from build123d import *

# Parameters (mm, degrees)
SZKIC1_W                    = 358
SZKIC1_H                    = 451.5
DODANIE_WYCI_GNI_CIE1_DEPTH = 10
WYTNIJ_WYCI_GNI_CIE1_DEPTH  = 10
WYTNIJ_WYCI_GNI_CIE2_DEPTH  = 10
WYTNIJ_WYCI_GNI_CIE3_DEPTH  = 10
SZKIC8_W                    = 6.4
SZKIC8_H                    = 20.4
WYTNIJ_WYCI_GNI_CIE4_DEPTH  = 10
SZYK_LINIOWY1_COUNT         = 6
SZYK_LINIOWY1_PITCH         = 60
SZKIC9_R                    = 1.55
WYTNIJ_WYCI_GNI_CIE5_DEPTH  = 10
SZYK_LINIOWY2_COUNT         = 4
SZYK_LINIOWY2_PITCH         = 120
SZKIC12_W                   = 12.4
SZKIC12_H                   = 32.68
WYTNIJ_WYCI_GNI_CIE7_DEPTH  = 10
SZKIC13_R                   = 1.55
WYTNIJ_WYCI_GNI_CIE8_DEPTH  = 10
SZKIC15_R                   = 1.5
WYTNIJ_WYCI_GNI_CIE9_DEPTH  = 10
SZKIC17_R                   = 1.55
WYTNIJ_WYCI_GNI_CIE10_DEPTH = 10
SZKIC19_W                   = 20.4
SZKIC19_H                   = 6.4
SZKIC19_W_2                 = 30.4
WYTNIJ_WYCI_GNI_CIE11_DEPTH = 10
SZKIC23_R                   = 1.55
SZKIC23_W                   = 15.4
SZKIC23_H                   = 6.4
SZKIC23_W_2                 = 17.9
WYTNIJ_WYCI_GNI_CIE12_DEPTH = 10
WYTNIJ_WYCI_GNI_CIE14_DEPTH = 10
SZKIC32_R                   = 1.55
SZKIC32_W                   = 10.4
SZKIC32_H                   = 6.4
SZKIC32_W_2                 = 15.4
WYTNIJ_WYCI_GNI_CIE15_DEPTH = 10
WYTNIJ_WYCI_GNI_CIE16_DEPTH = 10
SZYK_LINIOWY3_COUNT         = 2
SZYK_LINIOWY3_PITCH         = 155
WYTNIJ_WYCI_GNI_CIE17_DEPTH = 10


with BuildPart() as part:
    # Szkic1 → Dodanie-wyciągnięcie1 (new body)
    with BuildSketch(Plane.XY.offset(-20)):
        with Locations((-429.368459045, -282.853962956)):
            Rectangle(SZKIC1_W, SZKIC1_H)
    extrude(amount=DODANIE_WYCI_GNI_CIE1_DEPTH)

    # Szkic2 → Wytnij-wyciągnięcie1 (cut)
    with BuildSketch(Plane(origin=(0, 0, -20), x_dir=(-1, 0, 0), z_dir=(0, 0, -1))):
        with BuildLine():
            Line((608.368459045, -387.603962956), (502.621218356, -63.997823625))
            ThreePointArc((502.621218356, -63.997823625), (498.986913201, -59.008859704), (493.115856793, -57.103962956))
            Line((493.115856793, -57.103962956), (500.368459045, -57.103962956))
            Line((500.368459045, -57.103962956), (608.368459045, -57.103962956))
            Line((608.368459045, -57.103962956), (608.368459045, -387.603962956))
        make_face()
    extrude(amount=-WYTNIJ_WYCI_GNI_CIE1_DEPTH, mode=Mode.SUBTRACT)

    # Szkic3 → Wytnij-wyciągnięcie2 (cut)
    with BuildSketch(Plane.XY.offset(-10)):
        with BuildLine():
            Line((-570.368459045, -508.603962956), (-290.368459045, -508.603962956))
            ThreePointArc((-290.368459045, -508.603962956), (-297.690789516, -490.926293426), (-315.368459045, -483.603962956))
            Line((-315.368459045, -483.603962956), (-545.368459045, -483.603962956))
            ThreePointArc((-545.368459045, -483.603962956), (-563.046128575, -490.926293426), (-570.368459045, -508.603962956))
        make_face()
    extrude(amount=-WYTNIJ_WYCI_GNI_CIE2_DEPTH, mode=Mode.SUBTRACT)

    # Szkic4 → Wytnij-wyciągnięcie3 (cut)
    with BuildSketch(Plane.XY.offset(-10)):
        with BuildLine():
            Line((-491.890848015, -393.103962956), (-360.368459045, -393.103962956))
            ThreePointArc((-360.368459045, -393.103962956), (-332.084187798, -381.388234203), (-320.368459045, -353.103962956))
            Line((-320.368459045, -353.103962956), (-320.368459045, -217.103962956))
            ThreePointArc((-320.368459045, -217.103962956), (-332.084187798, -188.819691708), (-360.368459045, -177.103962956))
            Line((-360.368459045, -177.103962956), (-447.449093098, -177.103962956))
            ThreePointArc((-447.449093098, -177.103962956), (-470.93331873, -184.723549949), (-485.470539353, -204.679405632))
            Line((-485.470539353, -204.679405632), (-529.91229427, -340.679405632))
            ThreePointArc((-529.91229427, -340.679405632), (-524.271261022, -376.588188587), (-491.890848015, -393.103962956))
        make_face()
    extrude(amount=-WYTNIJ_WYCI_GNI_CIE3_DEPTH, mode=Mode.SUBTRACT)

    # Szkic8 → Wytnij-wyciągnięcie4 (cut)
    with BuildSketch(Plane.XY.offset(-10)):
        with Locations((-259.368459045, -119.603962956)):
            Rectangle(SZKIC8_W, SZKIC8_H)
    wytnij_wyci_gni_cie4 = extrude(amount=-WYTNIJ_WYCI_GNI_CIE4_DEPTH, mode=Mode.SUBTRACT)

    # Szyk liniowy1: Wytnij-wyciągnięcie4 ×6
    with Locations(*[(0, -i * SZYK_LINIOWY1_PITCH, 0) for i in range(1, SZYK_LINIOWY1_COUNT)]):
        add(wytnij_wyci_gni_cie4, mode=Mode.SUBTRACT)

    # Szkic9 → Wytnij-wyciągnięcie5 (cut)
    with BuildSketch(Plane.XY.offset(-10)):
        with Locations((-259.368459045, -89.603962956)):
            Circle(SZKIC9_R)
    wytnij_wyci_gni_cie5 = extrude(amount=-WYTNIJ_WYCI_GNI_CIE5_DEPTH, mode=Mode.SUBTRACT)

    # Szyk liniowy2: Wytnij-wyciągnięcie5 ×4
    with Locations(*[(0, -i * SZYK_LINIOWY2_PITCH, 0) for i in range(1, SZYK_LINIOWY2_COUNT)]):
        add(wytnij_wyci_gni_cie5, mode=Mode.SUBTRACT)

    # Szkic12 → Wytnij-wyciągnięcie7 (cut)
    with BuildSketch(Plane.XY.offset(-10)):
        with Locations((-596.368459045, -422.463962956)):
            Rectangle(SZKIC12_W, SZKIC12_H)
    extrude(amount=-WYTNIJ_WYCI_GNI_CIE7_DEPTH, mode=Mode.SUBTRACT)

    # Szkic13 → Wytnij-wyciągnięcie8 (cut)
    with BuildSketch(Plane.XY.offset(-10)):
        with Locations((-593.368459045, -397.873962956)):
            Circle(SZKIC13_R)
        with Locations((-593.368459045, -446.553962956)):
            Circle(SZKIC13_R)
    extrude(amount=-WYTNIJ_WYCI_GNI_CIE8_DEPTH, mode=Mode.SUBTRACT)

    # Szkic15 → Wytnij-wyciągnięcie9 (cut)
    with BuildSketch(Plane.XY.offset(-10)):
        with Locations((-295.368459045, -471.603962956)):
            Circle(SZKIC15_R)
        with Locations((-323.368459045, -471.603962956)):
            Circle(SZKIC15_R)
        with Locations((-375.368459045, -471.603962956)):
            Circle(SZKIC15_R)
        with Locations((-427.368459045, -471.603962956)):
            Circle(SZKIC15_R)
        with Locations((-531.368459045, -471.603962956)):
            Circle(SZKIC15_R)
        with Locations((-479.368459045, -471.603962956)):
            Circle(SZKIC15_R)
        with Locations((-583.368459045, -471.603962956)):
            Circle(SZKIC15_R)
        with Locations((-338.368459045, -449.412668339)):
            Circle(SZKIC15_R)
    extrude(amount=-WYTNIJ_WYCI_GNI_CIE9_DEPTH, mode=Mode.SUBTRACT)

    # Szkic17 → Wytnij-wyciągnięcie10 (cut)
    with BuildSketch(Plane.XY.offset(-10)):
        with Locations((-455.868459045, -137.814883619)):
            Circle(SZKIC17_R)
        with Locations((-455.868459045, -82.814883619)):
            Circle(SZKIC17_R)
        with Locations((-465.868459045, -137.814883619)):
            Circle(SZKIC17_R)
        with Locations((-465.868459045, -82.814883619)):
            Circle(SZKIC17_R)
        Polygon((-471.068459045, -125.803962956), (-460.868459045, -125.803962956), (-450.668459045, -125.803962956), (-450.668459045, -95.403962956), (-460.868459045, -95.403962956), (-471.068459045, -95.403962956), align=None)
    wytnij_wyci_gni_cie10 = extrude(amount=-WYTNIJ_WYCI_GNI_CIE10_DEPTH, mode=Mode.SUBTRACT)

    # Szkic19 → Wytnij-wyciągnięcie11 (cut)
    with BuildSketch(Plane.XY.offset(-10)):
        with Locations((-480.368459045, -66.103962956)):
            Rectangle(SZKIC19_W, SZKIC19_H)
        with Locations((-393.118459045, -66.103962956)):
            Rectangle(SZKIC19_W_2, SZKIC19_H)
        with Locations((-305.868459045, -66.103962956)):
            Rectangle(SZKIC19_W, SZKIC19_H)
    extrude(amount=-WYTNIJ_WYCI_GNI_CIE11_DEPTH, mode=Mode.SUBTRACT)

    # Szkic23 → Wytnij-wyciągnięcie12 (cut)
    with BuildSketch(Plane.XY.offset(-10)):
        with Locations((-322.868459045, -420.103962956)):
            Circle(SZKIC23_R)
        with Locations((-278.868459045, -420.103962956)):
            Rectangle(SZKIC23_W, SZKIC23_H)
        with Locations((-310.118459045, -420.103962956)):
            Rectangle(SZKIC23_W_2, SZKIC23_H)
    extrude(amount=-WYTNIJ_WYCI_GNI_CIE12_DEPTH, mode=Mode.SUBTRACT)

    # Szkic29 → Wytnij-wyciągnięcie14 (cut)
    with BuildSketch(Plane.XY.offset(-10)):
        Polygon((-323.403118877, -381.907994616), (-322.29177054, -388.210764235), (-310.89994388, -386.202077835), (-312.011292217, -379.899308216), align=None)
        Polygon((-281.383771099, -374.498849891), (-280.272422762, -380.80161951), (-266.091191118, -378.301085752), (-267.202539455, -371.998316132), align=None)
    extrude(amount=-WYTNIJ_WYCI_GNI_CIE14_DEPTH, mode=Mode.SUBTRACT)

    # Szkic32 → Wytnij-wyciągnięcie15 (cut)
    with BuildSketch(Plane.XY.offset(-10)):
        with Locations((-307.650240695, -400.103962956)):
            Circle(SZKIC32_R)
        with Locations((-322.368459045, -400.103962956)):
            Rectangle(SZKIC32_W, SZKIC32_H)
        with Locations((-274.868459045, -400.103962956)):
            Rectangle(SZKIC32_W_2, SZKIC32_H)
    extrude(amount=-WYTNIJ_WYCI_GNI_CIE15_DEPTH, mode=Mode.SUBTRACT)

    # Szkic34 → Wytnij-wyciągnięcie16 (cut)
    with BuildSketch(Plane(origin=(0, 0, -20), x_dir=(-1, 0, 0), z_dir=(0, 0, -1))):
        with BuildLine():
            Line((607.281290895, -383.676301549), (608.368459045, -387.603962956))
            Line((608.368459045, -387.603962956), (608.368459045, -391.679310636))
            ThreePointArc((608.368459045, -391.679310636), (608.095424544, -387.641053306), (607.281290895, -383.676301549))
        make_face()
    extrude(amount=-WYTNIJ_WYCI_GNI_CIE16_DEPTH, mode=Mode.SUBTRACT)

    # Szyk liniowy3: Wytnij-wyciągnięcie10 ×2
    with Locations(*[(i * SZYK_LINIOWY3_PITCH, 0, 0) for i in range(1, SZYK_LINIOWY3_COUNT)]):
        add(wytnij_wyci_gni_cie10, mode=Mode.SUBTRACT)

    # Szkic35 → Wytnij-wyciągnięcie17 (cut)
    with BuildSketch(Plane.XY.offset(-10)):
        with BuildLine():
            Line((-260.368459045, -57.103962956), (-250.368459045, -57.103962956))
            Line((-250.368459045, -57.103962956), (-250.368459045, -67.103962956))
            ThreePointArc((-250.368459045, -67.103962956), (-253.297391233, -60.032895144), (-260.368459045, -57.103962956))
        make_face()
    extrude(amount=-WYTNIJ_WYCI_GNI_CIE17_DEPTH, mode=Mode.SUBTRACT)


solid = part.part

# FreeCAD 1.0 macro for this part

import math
import FreeCAD as App
import Part
import Sketcher

V = App.Vector
Q = App.Units.Quantity


def add_polygon(sketch, points):
    """Adds a closed chain of lines whose ends are joined by coincident constraints."""
    first, n = sketch.GeometryCount, len(points)
    for a, b in zip(points, points[1:] + points[:1]):
        sketch.addGeometry(Part.LineSegment(App.Vector(*a, 0), App.Vector(*b, 0)), False)
    for i in range(n):
        sketch.addConstraint(Sketcher.Constraint("Coincident", first + i, 2, first + (i + 1) % n, 1))

doc = App.newDocument("Part")
body = doc.addObject("PartDesign::Body", "Body")

sketch1 = doc.addObject("Sketcher::SketchObject", "Sketch")
body.addObject(sketch1)
sketch1.AttachmentSupport = (doc.XY_Plane, [""])
sketch1.MapMode = "FlatFace"
sketch1.AttachmentOffset = App.Placement(V(0, 0, -20), App.Rotation())
add_polygon(sketch1, [(-608, -57), (-608, -509), (-250, -509), (-250, -57)])
sketch1.addConstraint([
    Sketcher.Constraint("Vertical", 0),
    Sketcher.Constraint("Horizontal", 1),
    Sketcher.Constraint("Vertical", 2),
    Sketcher.Constraint("Horizontal", 3),
    Sketcher.Constraint("DistanceX", 1, 1, 1, 2, Q("358 mm")),
    Sketcher.Constraint("DistanceY", 0, 2, 0, 1, Q("451.5 mm")),
    Sketcher.Constraint("DistanceX", 0, 2, -1, 1, Q("608.368459 mm")),
    Sketcher.Constraint("DistanceY", 0, 2, -1, 1, Q("508.603963 mm")),
])
pad1 = doc.addObject("PartDesign::Pad", "Pad")
body.addObject(pad1)
pad1.Profile = sketch1
pad1.Length = 10

sketch2 = doc.addObject("Sketcher::SketchObject", "Sketch001")
body.addObject(sketch2)
sketch2.AttachmentSupport = (doc.XY_Plane, [""])
sketch2.MapMode = "FlatFace"
sketch2.AttachmentOffset = App.Placement(V(0, 0, -20), App.Rotation())
sketch2.addGeometry([
    Part.LineSegment(V(-503, -64, 0), V(-608, -388, 0)),
    Part.LineSegment(V(-608, -388, 0), V(-608, -57, 0)),
    Part.LineSegment(V(-608, -57, 0), V(-493, -57, 0)),
    Part.ArcOfCircle(Part.Circle(V(-493, -67, 0), V(0, 0, 1), 10), math.radians(90), math.radians(162)),
], False)
sketch2.addConstraint([
    Sketcher.Constraint("Coincident", 0, 2, 1, 1),
    Sketcher.Constraint("Coincident", 1, 2, 2, 1),
    Sketcher.Constraint("Tangent", 2, 2, 3, 1),
    Sketcher.Constraint("Tangent", 3, 2, 0, 1),
    Sketcher.Constraint("Vertical", 1),
    Sketcher.Constraint("Horizontal", 2),
    Sketcher.Constraint("Radius", 3, Q("10 mm")),
    Sketcher.Constraint("DistanceY", 1, 1, 1, 2, Q("330.5 mm")),
    Sketcher.Constraint("DistanceX", 2, 1, 2, 2, Q("115.252602 mm")),
    Sketcher.Constraint("DistanceX", 0, 2, -1, 1, Q("608.368459 mm")),
    Sketcher.Constraint("DistanceY", 3, 3, -1, 1, Q("67.103963 mm")),
])
pocket1 = doc.addObject("PartDesign::Pocket", "Pocket")
body.addObject(pocket1)
pocket1.Profile = sketch2
pocket1.Length = 10
pocket1.Reversed = True

sketch3 = doc.addObject("Sketcher::SketchObject", "Sketch002")
body.addObject(sketch3)
sketch3.AttachmentSupport = (doc.XY_Plane, [""])
sketch3.MapMode = "FlatFace"
sketch3.AttachmentOffset = App.Placement(V(0, 0, -10), App.Rotation())
sketch3.addGeometry([
    Part.LineSegment(V(-570, -509, 0), V(-290, -509, 0)),
    Part.ArcOfCircle(Part.Circle(V(-315, -509, 0), V(0, 0, 1), 25), math.radians(0), math.radians(90)),
    Part.LineSegment(V(-315, -484, 0), V(-545, -484, 0)),
    Part.ArcOfCircle(Part.Circle(V(-545, -509, 0), V(0, 0, 1), 25), math.radians(90), math.radians(180)),
], False)
sketch3.addConstraint([
    Sketcher.Constraint("Coincident", 0, 2, 1, 1),
    Sketcher.Constraint("Tangent", 1, 2, 2, 1),
    Sketcher.Constraint("Tangent", 2, 2, 3, 1),
    Sketcher.Constraint("Coincident", 3, 2, 0, 1),
    Sketcher.Constraint("Horizontal", 0),
    Sketcher.Constraint("Horizontal", 2),
    Sketcher.Constraint("Equal", 1, 3),
    Sketcher.Constraint("Horizontal", 3, 3, 0, 2),
    Sketcher.Constraint("Radius", 1, Q("25 mm")),
    Sketcher.Constraint("DistanceX", 0, 1, 0, 2, Q("280 mm")),
    Sketcher.Constraint("DistanceX", 1, 3, -1, 1, Q("315.368459 mm")),
    Sketcher.Constraint("DistanceY", 1, 3, -1, 1, Q("508.603963 mm")),
])
pocket2 = doc.addObject("PartDesign::Pocket", "Pocket001")
body.addObject(pocket2)
pocket2.Profile = sketch3
pocket2.Length = 10

sketch4 = doc.addObject("Sketcher::SketchObject", "Sketch003")
body.addObject(sketch4)
sketch4.AttachmentSupport = (doc.XY_Plane, [""])
sketch4.MapMode = "FlatFace"
sketch4.AttachmentOffset = App.Placement(V(0, 0, -10), App.Rotation())
sketch4.addGeometry([
    Part.LineSegment(V(-492, -393, 0), V(-360, -393, 0)),
    Part.ArcOfCircle(Part.Circle(V(-360, -353, 0), V(0, 0, 1), 40), math.radians(-90), math.radians(0)),
    Part.LineSegment(V(-320, -353, 0), V(-320, -217, 0)),
    Part.ArcOfCircle(Part.Circle(V(-360, -217, 0), V(0, 0, 1), 40), math.radians(0), math.radians(90)),
    Part.LineSegment(V(-360, -177, 0), V(-447, -177, 0)),
    Part.ArcOfCircle(Part.Circle(V(-447, -217, 0), V(0, 0, 1), 40), math.radians(90), math.radians(162)),
    Part.LineSegment(V(-485, -205, 0), V(-530, -341, 0)),
    Part.ArcOfCircle(Part.Circle(V(-492, -353, 0), V(0, 0, 1), 40), math.radians(162), math.radians(270)),
], False)
sketch4.addConstraint([
    Sketcher.Constraint("Tangent", 0, 2, 1, 1),
    Sketcher.Constraint("Tangent", 1, 2, 2, 1),
    Sketcher.Constraint("Tangent", 2, 2, 3, 1),
    Sketcher.Constraint("Tangent", 3, 2, 4, 1),
    Sketcher.Constraint("Tangent", 4, 2, 5, 1),
    Sketcher.Constraint("Tangent", 5, 2, 6, 1),
    Sketcher.Constraint("Tangent", 6, 2, 7, 1),
    Sketcher.Constraint("Tangent", 7, 2, 0, 1),
    Sketcher.Constraint("Horizontal", 0),
    Sketcher.Constraint("Vertical", 2),
    Sketcher.Constraint("Horizontal", 4),
    Sketcher.Constraint("Equal", 1, 3),
    Sketcher.Constraint("Equal", 3, 5),
    Sketcher.Constraint("Equal", 5, 7),
    Sketcher.Constraint("Radius", 1, Q("40 mm")),
    Sketcher.Constraint("DistanceY", 2, 1, 2, 2, Q("136 mm")),
    Sketcher.Constraint("DistanceX", 0, 1, 0, 2, Q("131.522389 mm")),
    Sketcher.Constraint("DistanceX", 6, 2, 5, 3, Q("82.463201 mm")),
    Sketcher.Constraint("DistanceX", 1, 3, -1, 1, Q("360.368459 mm")),
    Sketcher.Constraint("DistanceY", 1, 3, -1, 1, Q("353.103963 mm")),
])
pocket3 = doc.addObject("PartDesign::Pocket", "Pocket002")
body.addObject(pocket3)
pocket3.Profile = sketch4
pocket3.Length = 10

sketch5 = doc.addObject("Sketcher::SketchObject", "Sketch004")
body.addObject(sketch5)
sketch5.AttachmentSupport = (doc.XY_Plane, [""])
sketch5.MapMode = "FlatFace"
sketch5.AttachmentOffset = App.Placement(V(0, 0, -10), App.Rotation())
add_polygon(sketch5, [(-263, -109), (-263, -130), (-256, -130), (-256, -109)])
sketch5.addConstraint([
    Sketcher.Constraint("Vertical", 0),
    Sketcher.Constraint("Horizontal", 1),
    Sketcher.Constraint("Vertical", 2),
    Sketcher.Constraint("Horizontal", 3),
    Sketcher.Constraint("DistanceX", 1, 1, 1, 2, Q("6.4 mm")),
    Sketcher.Constraint("DistanceY", 0, 2, 0, 1, Q("20.4 mm")),
    Sketcher.Constraint("DistanceX", 0, 2, -1, 1, Q("262.568459 mm")),
    Sketcher.Constraint("DistanceY", 0, 2, -1, 1, Q("129.803963 mm")),
])
pocket4 = doc.addObject("PartDesign::Pocket", "Pocket003")
body.addObject(pocket4)
pocket4.Profile = sketch5
pocket4.Length = 10
doc.recompute()

linearpattern = doc.addObject("PartDesign::LinearPattern", "LinearPattern")
body.addObject(linearpattern)
linearpattern.Originals = [pocket4]
linearpattern.Direction = (doc.Y_Axis, [""])
linearpattern.Mode = "offset"
linearpattern.Offset = 60
linearpattern.Occurrences = 6
linearpattern.Reversed = True
body.Tip = linearpattern

sketch6 = doc.addObject("Sketcher::SketchObject", "Sketch005")
body.addObject(sketch6)
sketch6.AttachmentSupport = (doc.XY_Plane, [""])
sketch6.MapMode = "FlatFace"
sketch6.AttachmentOffset = App.Placement(V(0, 0, -10), App.Rotation())
sketch6.addGeometry(Part.Circle(V(-259.4, -89.6, 0), V(0, 0, 1), 1.6), False)
sketch6.addConstraint([
    Sketcher.Constraint("Diameter", 0, Q("3.1 mm")),
    Sketcher.Constraint("DistanceX", 0, 3, -1, 1, Q("259.368459 mm")),
    Sketcher.Constraint("DistanceY", 0, 3, -1, 1, Q("89.603963 mm")),
])
pocket5 = doc.addObject("PartDesign::Pocket", "Pocket004")
body.addObject(pocket5)
pocket5.Profile = sketch6
pocket5.Length = 10
doc.recompute()

linearpattern2 = doc.addObject("PartDesign::LinearPattern", "LinearPattern001")
body.addObject(linearpattern2)
linearpattern2.Originals = [pocket5]
linearpattern2.Direction = (doc.Y_Axis, [""])
linearpattern2.Mode = "offset"
linearpattern2.Offset = 120
linearpattern2.Occurrences = 4
linearpattern2.Reversed = True
body.Tip = linearpattern2

sketch7 = doc.addObject("Sketcher::SketchObject", "Sketch006")
body.addObject(sketch7)
sketch7.AttachmentSupport = (doc.XY_Plane, [""])
sketch7.MapMode = "FlatFace"
sketch7.AttachmentOffset = App.Placement(V(0, 0, -10), App.Rotation())
add_polygon(sketch7, [(-603, -406), (-603, -439), (-590, -439), (-590, -406)])
sketch7.addConstraint([
    Sketcher.Constraint("Vertical", 0),
    Sketcher.Constraint("Horizontal", 1),
    Sketcher.Constraint("Vertical", 2),
    Sketcher.Constraint("Horizontal", 3),
    Sketcher.Constraint("DistanceX", 1, 1, 1, 2, Q("12.4 mm")),
    Sketcher.Constraint("DistanceY", 0, 2, 0, 1, Q("32.68 mm")),
    Sketcher.Constraint("DistanceX", 0, 2, -1, 1, Q("602.568459 mm")),
    Sketcher.Constraint("DistanceY", 0, 2, -1, 1, Q("438.803963 mm")),
])
pocket6 = doc.addObject("PartDesign::Pocket", "Pocket005")
body.addObject(pocket6)
pocket6.Profile = sketch7
pocket6.Length = 10

sketch8 = doc.addObject("Sketcher::SketchObject", "Sketch007")
body.addObject(sketch8)
sketch8.AttachmentSupport = (doc.XY_Plane, [""])
sketch8.MapMode = "FlatFace"
sketch8.AttachmentOffset = App.Placement(V(0, 0, -10), App.Rotation())
sketch8.addGeometry([
    Part.Circle(V(-593.4, -397.9, 0), V(0, 0, 1), 1.6),
    Part.Circle(V(-593.4, -446.6, 0), V(0, 0, 1), 1.6),
], False)
sketch8.addConstraint([
    Sketcher.Constraint("Equal", 0, 1),
    Sketcher.Constraint("Vertical", 0, 3, 1, 3),
    Sketcher.Constraint("Diameter", 0, Q("3.1 mm")),
    Sketcher.Constraint("DistanceY", 1, 3, 0, 3, Q("48.68 mm")),
    Sketcher.Constraint("DistanceX", 0, 3, -1, 1, Q("593.368459 mm")),
    Sketcher.Constraint("DistanceY", 0, 3, -1, 1, Q("397.873963 mm")),
])
pocket7 = doc.addObject("PartDesign::Pocket", "Pocket006")
body.addObject(pocket7)
pocket7.Profile = sketch8
pocket7.Length = 10

sketch9 = doc.addObject("Sketcher::SketchObject", "Sketch008")
body.addObject(sketch9)
sketch9.AttachmentSupport = (doc.XY_Plane, [""])
sketch9.MapMode = "FlatFace"
sketch9.AttachmentOffset = App.Placement(V(0, 0, -10), App.Rotation())
sketch9.addGeometry([
    Part.Circle(V(-295.4, -471.6, 0), V(0, 0, 1), 1.5),
    Part.Circle(V(-323.4, -471.6, 0), V(0, 0, 1), 1.5),
    Part.Circle(V(-375.4, -471.6, 0), V(0, 0, 1), 1.5),
    Part.Circle(V(-427.4, -471.6, 0), V(0, 0, 1), 1.5),
    Part.Circle(V(-531.4, -471.6, 0), V(0, 0, 1), 1.5),
    Part.Circle(V(-479.4, -471.6, 0), V(0, 0, 1), 1.5),
    Part.Circle(V(-583.4, -471.6, 0), V(0, 0, 1), 1.5),
    Part.Circle(V(-338.4, -449.4, 0), V(0, 0, 1), 1.5),
], False)
sketch9.addConstraint([
    Sketcher.Constraint("Equal", 0, 1),
    Sketcher.Constraint("Equal", 1, 2),
    Sketcher.Constraint("Equal", 2, 3),
    Sketcher.Constraint("Equal", 3, 4),
    Sketcher.Constraint("Equal", 4, 5),
    Sketcher.Constraint("Equal", 5, 6),
    Sketcher.Constraint("Equal", 6, 7),
    Sketcher.Constraint("Horizontal", 0, 3, 1, 3),
    Sketcher.Constraint("Horizontal", 1, 3, 2, 3),
    Sketcher.Constraint("Horizontal", 2, 3, 3, 3),
    Sketcher.Constraint("Horizontal", 3, 3, 4, 3),
    Sketcher.Constraint("Horizontal", 4, 3, 5, 3),
    Sketcher.Constraint("Horizontal", 5, 3, 6, 3),
    Sketcher.Constraint("Diameter", 0, Q("3 mm")),
    Sketcher.Constraint("DistanceX", 1, 3, 0, 3, Q("28 mm")),
    Sketcher.Constraint("DistanceX", 2, 3, 1, 3, Q("52 mm")),
    Sketcher.Constraint("DistanceX", 3, 3, 2, 3, Q("52 mm")),
    Sketcher.Constraint("DistanceX", 4, 3, 3, 3, Q("104 mm")),
    Sketcher.Constraint("DistanceX", 5, 3, 3, 3, Q("52 mm")),
    Sketcher.Constraint("DistanceX", 6, 3, 4, 3, Q("52 mm")),
    Sketcher.Constraint("DistanceX", 7, 3, 1, 3, Q("15 mm")),
    Sketcher.Constraint("DistanceX", 0, 3, -1, 1, Q("295.368459 mm")),
    Sketcher.Constraint("DistanceY", 7, 3, -1, 1, Q("449.412668 mm")),
    Sketcher.Constraint("DistanceY", 0, 3, -1, 1, Q("471.603963 mm")),
])
pocket8 = doc.addObject("PartDesign::Pocket", "Pocket007")
body.addObject(pocket8)
pocket8.Profile = sketch9
pocket8.Length = 10

sketch10 = doc.addObject("Sketcher::SketchObject", "Sketch009")
body.addObject(sketch10)
sketch10.AttachmentSupport = (doc.XY_Plane, [""])
sketch10.MapMode = "FlatFace"
sketch10.AttachmentOffset = App.Placement(V(0, 0, -10), App.Rotation())
sketch10.addGeometry(Part.Circle(V(-455.9, -137.8, 0), V(0, 0, 1), 1.6), False)
sketch10.addGeometry(Part.Circle(V(-455.9, -82.8, 0), V(0, 0, 1), 1.6), False)
sketch10.addGeometry(Part.Circle(V(-465.9, -137.8, 0), V(0, 0, 1), 1.6), False)
sketch10.addGeometry(Part.Circle(V(-465.9, -82.8, 0), V(0, 0, 1), 1.6), False)
add_polygon(sketch10, [(-471.1, -125.8), (-450.7, -125.8), (-450.7, -95.4), (-471.1, -95.4)])
sketch10.addConstraint([
    Sketcher.Constraint("Horizontal", 4),
    Sketcher.Constraint("Vertical", 5),
    Sketcher.Constraint("Horizontal", 6),
    Sketcher.Constraint("Vertical", 7),
    Sketcher.Constraint("Equal", 0, 1),
    Sketcher.Constraint("Equal", 1, 2),
    Sketcher.Constraint("Equal", 2, 3),
    Sketcher.Constraint("Horizontal", 0, 3, 2, 3),
    Sketcher.Constraint("Horizontal", 1, 3, 3, 3),
    Sketcher.Constraint("Vertical", 0, 3, 1, 3),
    Sketcher.Constraint("Vertical", 2, 3, 3, 3),
    Sketcher.Constraint("Diameter", 0, Q("3.1 mm")),
    Sketcher.Constraint("DistanceX", 4, 1, 4, 2, Q("20.4 mm")),
    Sketcher.Constraint("DistanceY", 5, 1, 5, 2, Q("30.4 mm")),
    Sketcher.Constraint("DistanceY", 0, 3, 1, 3, Q("55 mm")),
    Sketcher.Constraint("DistanceX", 2, 3, 0, 3, Q("10 mm")),
    Sketcher.Constraint("DistanceX", 0, 3, 4, 2, Q("5.2 mm")),
    Sketcher.Constraint("DistanceX", 0, 3, -1, 1, Q("455.868459 mm")),
    Sketcher.Constraint("DistanceY", 0, 3, 4, 2, Q("12.010921 mm")),
    Sketcher.Constraint("DistanceY", 0, 3, -1, 1, Q("137.814884 mm")),
])
pocket9 = doc.addObject("PartDesign::Pocket", "Pocket008")
body.addObject(pocket9)
pocket9.Profile = sketch10
pocket9.Length = 10

sketch11 = doc.addObject("Sketcher::SketchObject", "Sketch010")
body.addObject(sketch11)
sketch11.AttachmentSupport = (doc.XY_Plane, [""])
sketch11.MapMode = "FlatFace"
sketch11.AttachmentOffset = App.Placement(V(0, 0, -10), App.Rotation())
add_polygon(sketch11, [(-491, -63), (-491, -69), (-470, -69), (-470, -63)])
add_polygon(sketch11, [(-408, -63), (-408, -69), (-378, -69), (-378, -63)])
add_polygon(sketch11, [(-316, -63), (-316, -69), (-296, -69), (-296, -63)])
sketch11.addConstraint([
    Sketcher.Constraint("Vertical", 0),
    Sketcher.Constraint("Horizontal", 1),
    Sketcher.Constraint("Vertical", 2),
    Sketcher.Constraint("Horizontal", 3),
    Sketcher.Constraint("Vertical", 4),
    Sketcher.Constraint("Horizontal", 5),
    Sketcher.Constraint("Vertical", 6),
    Sketcher.Constraint("Horizontal", 7),
    Sketcher.Constraint("Vertical", 8),
    Sketcher.Constraint("Horizontal", 9),
    Sketcher.Constraint("Vertical", 10),
    Sketcher.Constraint("Horizontal", 11),
    Sketcher.Constraint("Horizontal", 1, 2, 4, 2),
    Sketcher.Constraint("Horizontal", 3, 2, 6, 2),
    Sketcher.Constraint("Horizontal", 5, 2, 8, 2),
    Sketcher.Constraint("Horizontal", 7, 2, 10, 2),
    Sketcher.Constraint("Equal", 3, 9),
    Sketcher.Constraint("DistanceX", 1, 1, 1, 2, Q("20.4 mm")),
    Sketcher.Constraint("DistanceX", 5, 1, 5, 2, Q("30.4 mm")),
    Sketcher.Constraint("DistanceY", 0, 2, 0, 1, Q("6.4 mm")),
    Sketcher.Constraint("DistanceX", 1, 2, 8, 2, Q("154.1 mm")),
    Sketcher.Constraint("DistanceX", 1, 2, 4, 2, Q("61.85 mm")),
    Sketcher.Constraint("DistanceX", 0, 2, -1, 1, Q("490.568459 mm")),
    Sketcher.Constraint("DistanceY", 0, 2, -1, 1, Q("69.303963 mm")),
])
pocket10 = doc.addObject("PartDesign::Pocket", "Pocket009")
body.addObject(pocket10)
pocket10.Profile = sketch11
pocket10.Length = 10

sketch12 = doc.addObject("Sketcher::SketchObject", "Sketch011")
body.addObject(sketch12)
sketch12.AttachmentSupport = (doc.XY_Plane, [""])
sketch12.MapMode = "FlatFace"
sketch12.AttachmentOffset = App.Placement(V(0, 0, -10), App.Rotation())
sketch12.addGeometry(Part.Circle(V(-322.9, -420.1, 0), V(0, 0, 1), 1.6), False)
add_polygon(sketch12, [(-286.6, -416.9), (-286.6, -423.3), (-271.2, -423.3), (-271.2, -416.9)])
add_polygon(sketch12, [(-319.1, -416.9), (-319.1, -423.3), (-301.2, -423.3), (-301.2, -416.9)])
sketch12.addConstraint([
    Sketcher.Constraint("Vertical", 1),
    Sketcher.Constraint("Horizontal", 2),
    Sketcher.Constraint("Vertical", 3),
    Sketcher.Constraint("Horizontal", 4),
    Sketcher.Constraint("Vertical", 5),
    Sketcher.Constraint("Horizontal", 6),
    Sketcher.Constraint("Vertical", 7),
    Sketcher.Constraint("Horizontal", 8),
    Sketcher.Constraint("Horizontal", 2, 2, 5, 2),
    Sketcher.Constraint("Horizontal", 4, 2, 7, 2),
    Sketcher.Constraint("Diameter", 0, Q("3.1 mm")),
    Sketcher.Constraint("DistanceX", 2, 1, 2, 2, Q("15.4 mm")),
    Sketcher.Constraint("DistanceX", 6, 1, 6, 2, Q("17.9 mm")),
    Sketcher.Constraint("DistanceY", 1, 2, 1, 1, Q("6.4 mm")),
    Sketcher.Constraint("DistanceX", 6, 2, 2, 2, Q("30 mm")),
    Sketcher.Constraint("DistanceX", 0, 3, 1, 2, Q("36.3 mm")),
    Sketcher.Constraint("DistanceY", 1, 2, 0, 3, Q("3.2 mm")),
    Sketcher.Constraint("DistanceX", 0, 3, -1, 1, Q("322.868459 mm")),
    Sketcher.Constraint("DistanceY", 0, 3, -1, 1, Q("420.103963 mm")),
])
pocket11 = doc.addObject("PartDesign::Pocket", "Pocket010")
body.addObject(pocket11)
pocket11.Profile = sketch12
pocket11.Length = 10

sketch13 = doc.addObject("Sketcher::SketchObject", "Sketch012")
body.addObject(sketch13)
sketch13.AttachmentSupport = (doc.XY_Plane, [""])
sketch13.MapMode = "FlatFace"
sketch13.AttachmentOffset = App.Placement(V(0, 0, -10), App.Rotation())
add_polygon(sketch13, [(-323, -382), (-322, -388), (-311, -386), (-312, -380)])
add_polygon(sketch13, [(-281, -374), (-280, -381), (-266, -378), (-267, -372)])
sketch13.addConstraint([
    Sketcher.Constraint("Perpendicular", 0, 1),
    Sketcher.Constraint("Perpendicular", 1, 2),
    Sketcher.Constraint("Perpendicular", 2, 3),
    Sketcher.Constraint("Perpendicular", 3, 4),
    Sketcher.Constraint("Perpendicular", 4, 5),
    Sketcher.Constraint("Perpendicular", 5, 6),
    Sketcher.Constraint("Perpendicular", 6, 7),
    Sketcher.Constraint("Equal", 2, 4),
    Sketcher.Constraint("Angle", 0, Q("-80 deg")),
    Sketcher.Constraint("Distance", 0, Q("6.4 mm")),
    Sketcher.Constraint("Distance", 5, Q("14.4 mm")),
    Sketcher.Constraint("DistanceX", 2, 2, 5, 2, Q("45.920101 mm")),
    Sketcher.Constraint("DistanceX", 0, 2, -1, 1, Q("322.291771 mm")),
    Sketcher.Constraint("DistanceY", 2, 2, -1, 1, Q("379.899308 mm")),
    Sketcher.Constraint("DistanceY", 4, 2, -1, 1, Q("380.80162 mm")),
    Sketcher.Constraint("DistanceX", 5, 2, -1, 1, Q("266.091191 mm")),
])
pocket12 = doc.addObject("PartDesign::Pocket", "Pocket011")
body.addObject(pocket12)
pocket12.Profile = sketch13
pocket12.Length = 10

sketch14 = doc.addObject("Sketcher::SketchObject", "Sketch013")
body.addObject(sketch14)
sketch14.AttachmentSupport = (doc.XY_Plane, [""])
sketch14.MapMode = "FlatFace"
sketch14.AttachmentOffset = App.Placement(V(0, 0, -10), App.Rotation())
sketch14.addGeometry(Part.Circle(V(-307.7, -400.1, 0), V(0, 0, 1), 1.6), False)
add_polygon(sketch14, [(-327.6, -396.9), (-327.6, -403.3), (-317.2, -403.3), (-317.2, -396.9)])
add_polygon(sketch14, [(-282.6, -396.9), (-282.6, -403.3), (-267.2, -403.3), (-267.2, -396.9)])
sketch14.addConstraint([
    Sketcher.Constraint("Vertical", 1),
    Sketcher.Constraint("Horizontal", 2),
    Sketcher.Constraint("Vertical", 3),
    Sketcher.Constraint("Horizontal", 4),
    Sketcher.Constraint("Vertical", 5),
    Sketcher.Constraint("Horizontal", 6),
    Sketcher.Constraint("Vertical", 7),
    Sketcher.Constraint("Horizontal", 8),
    Sketcher.Constraint("Horizontal", 2, 2, 5, 2),
    Sketcher.Constraint("Horizontal", 4, 2, 7, 2),
    Sketcher.Constraint("Diameter", 0, Q("3.1 mm")),
    Sketcher.Constraint("DistanceX", 2, 1, 2, 2, Q("10.4 mm")),
    Sketcher.Constraint("DistanceX", 6, 1, 6, 2, Q("15.4 mm")),
    Sketcher.Constraint("DistanceY", 1, 2, 1, 1, Q("6.4 mm")),
    Sketcher.Constraint("DistanceX", 1, 2, 5, 2, Q("45 mm")),
    Sketcher.Constraint("DistanceY", 1, 2, 0, 3, Q("3.2 mm")),
    Sketcher.Constraint("DistanceX", 0, 3, -1, 1, Q("307.650241 mm")),
    Sketcher.Constraint("DistanceX", 1, 2, -1, 1, Q("327.568459 mm")),
    Sketcher.Constraint("DistanceY", 0, 3, -1, 1, Q("400.103963 mm")),
])
pocket13 = doc.addObject("PartDesign::Pocket", "Pocket012")
body.addObject(pocket13)
pocket13.Profile = sketch14
pocket13.Length = 10

sketch15 = doc.addObject("Sketcher::SketchObject", "Sketch014")
body.addObject(sketch15)
sketch15.AttachmentSupport = (doc.XY_Plane, [""])
sketch15.MapMode = "FlatFace"
sketch15.AttachmentOffset = App.Placement(V(0, 0, -20), App.Rotation())
sketch15.addGeometry([
    Part.LineSegment(V(-608.4, -387.6, 0), V(-607.3, -383.7, 0)),
    Part.ArcOfCircle(Part.Circle(V(-578.4, -391.7, 0), V(0, 0, 1), 30), math.radians(164.53), math.radians(180)),
    Part.LineSegment(V(-608.4, -391.7, 0), V(-608.4, -387.6, 0)),
], False)
sketch15.addConstraint([
    Sketcher.Constraint("Tangent", 0, 2, 1, 1),
    Sketcher.Constraint("Tangent", 1, 2, 2, 1),
    Sketcher.Constraint("Coincident", 2, 2, 0, 1),
    Sketcher.Constraint("Vertical", 2),
    Sketcher.Constraint("Radius", 1, Q("30 mm")),
    Sketcher.Constraint("DistanceY", 0, 2, -1, 1, Q("383.676302 mm")),
    Sketcher.Constraint("DistanceY", 2, 1, 2, 2, Q("4.075348 mm")),
    Sketcher.Constraint("DistanceX", 1, 3, -1, 1, Q("578.368459 mm")),
])
pocket14 = doc.addObject("PartDesign::Pocket", "Pocket013")
body.addObject(pocket14)
pocket14.Profile = sketch15
pocket14.Length = 10
pocket14.Reversed = True
doc.recompute()

linearpattern3 = doc.addObject("PartDesign::LinearPattern", "LinearPattern002")
body.addObject(linearpattern3)
linearpattern3.Originals = [pocket9]
linearpattern3.Direction = (doc.X_Axis, [""])
linearpattern3.Mode = "offset"
linearpattern3.Offset = 155
linearpattern3.Occurrences = 2
body.Tip = linearpattern3

sketch16 = doc.addObject("Sketcher::SketchObject", "Sketch015")
body.addObject(sketch16)
sketch16.AttachmentSupport = (doc.XY_Plane, [""])
sketch16.MapMode = "FlatFace"
sketch16.AttachmentOffset = App.Placement(V(0, 0, -10), App.Rotation())
sketch16.addGeometry([
    Part.LineSegment(V(-250, -57, 0), V(-260, -57, 0)),
    Part.ArcOfCircle(Part.Circle(V(-260, -67, 0), V(0, 0, 1), 10), math.radians(0), math.radians(90)),
    Part.LineSegment(V(-250, -67, 0), V(-250, -57, 0)),
], False)
sketch16.addConstraint([
    Sketcher.Constraint("Tangent", 0, 2, 1, 2),
    Sketcher.Constraint("Tangent", 1, 1, 2, 1),
    Sketcher.Constraint("Coincident", 2, 2, 0, 1),
    Sketcher.Constraint("Horizontal", 0),
    Sketcher.Constraint("Vertical", 2),
    Sketcher.Constraint("Radius", 1, Q("10 mm")),
    Sketcher.Constraint("DistanceX", 1, 3, -1, 1, Q("260.368459 mm")),
    Sketcher.Constraint("DistanceY", 1, 3, -1, 1, Q("67.103963 mm")),
])
pocket15 = doc.addObject("PartDesign::Pocket", "Pocket014")
body.addObject(pocket15)
pocket15.Profile = sketch16
pocket15.Length = 10

doc.recompute()
